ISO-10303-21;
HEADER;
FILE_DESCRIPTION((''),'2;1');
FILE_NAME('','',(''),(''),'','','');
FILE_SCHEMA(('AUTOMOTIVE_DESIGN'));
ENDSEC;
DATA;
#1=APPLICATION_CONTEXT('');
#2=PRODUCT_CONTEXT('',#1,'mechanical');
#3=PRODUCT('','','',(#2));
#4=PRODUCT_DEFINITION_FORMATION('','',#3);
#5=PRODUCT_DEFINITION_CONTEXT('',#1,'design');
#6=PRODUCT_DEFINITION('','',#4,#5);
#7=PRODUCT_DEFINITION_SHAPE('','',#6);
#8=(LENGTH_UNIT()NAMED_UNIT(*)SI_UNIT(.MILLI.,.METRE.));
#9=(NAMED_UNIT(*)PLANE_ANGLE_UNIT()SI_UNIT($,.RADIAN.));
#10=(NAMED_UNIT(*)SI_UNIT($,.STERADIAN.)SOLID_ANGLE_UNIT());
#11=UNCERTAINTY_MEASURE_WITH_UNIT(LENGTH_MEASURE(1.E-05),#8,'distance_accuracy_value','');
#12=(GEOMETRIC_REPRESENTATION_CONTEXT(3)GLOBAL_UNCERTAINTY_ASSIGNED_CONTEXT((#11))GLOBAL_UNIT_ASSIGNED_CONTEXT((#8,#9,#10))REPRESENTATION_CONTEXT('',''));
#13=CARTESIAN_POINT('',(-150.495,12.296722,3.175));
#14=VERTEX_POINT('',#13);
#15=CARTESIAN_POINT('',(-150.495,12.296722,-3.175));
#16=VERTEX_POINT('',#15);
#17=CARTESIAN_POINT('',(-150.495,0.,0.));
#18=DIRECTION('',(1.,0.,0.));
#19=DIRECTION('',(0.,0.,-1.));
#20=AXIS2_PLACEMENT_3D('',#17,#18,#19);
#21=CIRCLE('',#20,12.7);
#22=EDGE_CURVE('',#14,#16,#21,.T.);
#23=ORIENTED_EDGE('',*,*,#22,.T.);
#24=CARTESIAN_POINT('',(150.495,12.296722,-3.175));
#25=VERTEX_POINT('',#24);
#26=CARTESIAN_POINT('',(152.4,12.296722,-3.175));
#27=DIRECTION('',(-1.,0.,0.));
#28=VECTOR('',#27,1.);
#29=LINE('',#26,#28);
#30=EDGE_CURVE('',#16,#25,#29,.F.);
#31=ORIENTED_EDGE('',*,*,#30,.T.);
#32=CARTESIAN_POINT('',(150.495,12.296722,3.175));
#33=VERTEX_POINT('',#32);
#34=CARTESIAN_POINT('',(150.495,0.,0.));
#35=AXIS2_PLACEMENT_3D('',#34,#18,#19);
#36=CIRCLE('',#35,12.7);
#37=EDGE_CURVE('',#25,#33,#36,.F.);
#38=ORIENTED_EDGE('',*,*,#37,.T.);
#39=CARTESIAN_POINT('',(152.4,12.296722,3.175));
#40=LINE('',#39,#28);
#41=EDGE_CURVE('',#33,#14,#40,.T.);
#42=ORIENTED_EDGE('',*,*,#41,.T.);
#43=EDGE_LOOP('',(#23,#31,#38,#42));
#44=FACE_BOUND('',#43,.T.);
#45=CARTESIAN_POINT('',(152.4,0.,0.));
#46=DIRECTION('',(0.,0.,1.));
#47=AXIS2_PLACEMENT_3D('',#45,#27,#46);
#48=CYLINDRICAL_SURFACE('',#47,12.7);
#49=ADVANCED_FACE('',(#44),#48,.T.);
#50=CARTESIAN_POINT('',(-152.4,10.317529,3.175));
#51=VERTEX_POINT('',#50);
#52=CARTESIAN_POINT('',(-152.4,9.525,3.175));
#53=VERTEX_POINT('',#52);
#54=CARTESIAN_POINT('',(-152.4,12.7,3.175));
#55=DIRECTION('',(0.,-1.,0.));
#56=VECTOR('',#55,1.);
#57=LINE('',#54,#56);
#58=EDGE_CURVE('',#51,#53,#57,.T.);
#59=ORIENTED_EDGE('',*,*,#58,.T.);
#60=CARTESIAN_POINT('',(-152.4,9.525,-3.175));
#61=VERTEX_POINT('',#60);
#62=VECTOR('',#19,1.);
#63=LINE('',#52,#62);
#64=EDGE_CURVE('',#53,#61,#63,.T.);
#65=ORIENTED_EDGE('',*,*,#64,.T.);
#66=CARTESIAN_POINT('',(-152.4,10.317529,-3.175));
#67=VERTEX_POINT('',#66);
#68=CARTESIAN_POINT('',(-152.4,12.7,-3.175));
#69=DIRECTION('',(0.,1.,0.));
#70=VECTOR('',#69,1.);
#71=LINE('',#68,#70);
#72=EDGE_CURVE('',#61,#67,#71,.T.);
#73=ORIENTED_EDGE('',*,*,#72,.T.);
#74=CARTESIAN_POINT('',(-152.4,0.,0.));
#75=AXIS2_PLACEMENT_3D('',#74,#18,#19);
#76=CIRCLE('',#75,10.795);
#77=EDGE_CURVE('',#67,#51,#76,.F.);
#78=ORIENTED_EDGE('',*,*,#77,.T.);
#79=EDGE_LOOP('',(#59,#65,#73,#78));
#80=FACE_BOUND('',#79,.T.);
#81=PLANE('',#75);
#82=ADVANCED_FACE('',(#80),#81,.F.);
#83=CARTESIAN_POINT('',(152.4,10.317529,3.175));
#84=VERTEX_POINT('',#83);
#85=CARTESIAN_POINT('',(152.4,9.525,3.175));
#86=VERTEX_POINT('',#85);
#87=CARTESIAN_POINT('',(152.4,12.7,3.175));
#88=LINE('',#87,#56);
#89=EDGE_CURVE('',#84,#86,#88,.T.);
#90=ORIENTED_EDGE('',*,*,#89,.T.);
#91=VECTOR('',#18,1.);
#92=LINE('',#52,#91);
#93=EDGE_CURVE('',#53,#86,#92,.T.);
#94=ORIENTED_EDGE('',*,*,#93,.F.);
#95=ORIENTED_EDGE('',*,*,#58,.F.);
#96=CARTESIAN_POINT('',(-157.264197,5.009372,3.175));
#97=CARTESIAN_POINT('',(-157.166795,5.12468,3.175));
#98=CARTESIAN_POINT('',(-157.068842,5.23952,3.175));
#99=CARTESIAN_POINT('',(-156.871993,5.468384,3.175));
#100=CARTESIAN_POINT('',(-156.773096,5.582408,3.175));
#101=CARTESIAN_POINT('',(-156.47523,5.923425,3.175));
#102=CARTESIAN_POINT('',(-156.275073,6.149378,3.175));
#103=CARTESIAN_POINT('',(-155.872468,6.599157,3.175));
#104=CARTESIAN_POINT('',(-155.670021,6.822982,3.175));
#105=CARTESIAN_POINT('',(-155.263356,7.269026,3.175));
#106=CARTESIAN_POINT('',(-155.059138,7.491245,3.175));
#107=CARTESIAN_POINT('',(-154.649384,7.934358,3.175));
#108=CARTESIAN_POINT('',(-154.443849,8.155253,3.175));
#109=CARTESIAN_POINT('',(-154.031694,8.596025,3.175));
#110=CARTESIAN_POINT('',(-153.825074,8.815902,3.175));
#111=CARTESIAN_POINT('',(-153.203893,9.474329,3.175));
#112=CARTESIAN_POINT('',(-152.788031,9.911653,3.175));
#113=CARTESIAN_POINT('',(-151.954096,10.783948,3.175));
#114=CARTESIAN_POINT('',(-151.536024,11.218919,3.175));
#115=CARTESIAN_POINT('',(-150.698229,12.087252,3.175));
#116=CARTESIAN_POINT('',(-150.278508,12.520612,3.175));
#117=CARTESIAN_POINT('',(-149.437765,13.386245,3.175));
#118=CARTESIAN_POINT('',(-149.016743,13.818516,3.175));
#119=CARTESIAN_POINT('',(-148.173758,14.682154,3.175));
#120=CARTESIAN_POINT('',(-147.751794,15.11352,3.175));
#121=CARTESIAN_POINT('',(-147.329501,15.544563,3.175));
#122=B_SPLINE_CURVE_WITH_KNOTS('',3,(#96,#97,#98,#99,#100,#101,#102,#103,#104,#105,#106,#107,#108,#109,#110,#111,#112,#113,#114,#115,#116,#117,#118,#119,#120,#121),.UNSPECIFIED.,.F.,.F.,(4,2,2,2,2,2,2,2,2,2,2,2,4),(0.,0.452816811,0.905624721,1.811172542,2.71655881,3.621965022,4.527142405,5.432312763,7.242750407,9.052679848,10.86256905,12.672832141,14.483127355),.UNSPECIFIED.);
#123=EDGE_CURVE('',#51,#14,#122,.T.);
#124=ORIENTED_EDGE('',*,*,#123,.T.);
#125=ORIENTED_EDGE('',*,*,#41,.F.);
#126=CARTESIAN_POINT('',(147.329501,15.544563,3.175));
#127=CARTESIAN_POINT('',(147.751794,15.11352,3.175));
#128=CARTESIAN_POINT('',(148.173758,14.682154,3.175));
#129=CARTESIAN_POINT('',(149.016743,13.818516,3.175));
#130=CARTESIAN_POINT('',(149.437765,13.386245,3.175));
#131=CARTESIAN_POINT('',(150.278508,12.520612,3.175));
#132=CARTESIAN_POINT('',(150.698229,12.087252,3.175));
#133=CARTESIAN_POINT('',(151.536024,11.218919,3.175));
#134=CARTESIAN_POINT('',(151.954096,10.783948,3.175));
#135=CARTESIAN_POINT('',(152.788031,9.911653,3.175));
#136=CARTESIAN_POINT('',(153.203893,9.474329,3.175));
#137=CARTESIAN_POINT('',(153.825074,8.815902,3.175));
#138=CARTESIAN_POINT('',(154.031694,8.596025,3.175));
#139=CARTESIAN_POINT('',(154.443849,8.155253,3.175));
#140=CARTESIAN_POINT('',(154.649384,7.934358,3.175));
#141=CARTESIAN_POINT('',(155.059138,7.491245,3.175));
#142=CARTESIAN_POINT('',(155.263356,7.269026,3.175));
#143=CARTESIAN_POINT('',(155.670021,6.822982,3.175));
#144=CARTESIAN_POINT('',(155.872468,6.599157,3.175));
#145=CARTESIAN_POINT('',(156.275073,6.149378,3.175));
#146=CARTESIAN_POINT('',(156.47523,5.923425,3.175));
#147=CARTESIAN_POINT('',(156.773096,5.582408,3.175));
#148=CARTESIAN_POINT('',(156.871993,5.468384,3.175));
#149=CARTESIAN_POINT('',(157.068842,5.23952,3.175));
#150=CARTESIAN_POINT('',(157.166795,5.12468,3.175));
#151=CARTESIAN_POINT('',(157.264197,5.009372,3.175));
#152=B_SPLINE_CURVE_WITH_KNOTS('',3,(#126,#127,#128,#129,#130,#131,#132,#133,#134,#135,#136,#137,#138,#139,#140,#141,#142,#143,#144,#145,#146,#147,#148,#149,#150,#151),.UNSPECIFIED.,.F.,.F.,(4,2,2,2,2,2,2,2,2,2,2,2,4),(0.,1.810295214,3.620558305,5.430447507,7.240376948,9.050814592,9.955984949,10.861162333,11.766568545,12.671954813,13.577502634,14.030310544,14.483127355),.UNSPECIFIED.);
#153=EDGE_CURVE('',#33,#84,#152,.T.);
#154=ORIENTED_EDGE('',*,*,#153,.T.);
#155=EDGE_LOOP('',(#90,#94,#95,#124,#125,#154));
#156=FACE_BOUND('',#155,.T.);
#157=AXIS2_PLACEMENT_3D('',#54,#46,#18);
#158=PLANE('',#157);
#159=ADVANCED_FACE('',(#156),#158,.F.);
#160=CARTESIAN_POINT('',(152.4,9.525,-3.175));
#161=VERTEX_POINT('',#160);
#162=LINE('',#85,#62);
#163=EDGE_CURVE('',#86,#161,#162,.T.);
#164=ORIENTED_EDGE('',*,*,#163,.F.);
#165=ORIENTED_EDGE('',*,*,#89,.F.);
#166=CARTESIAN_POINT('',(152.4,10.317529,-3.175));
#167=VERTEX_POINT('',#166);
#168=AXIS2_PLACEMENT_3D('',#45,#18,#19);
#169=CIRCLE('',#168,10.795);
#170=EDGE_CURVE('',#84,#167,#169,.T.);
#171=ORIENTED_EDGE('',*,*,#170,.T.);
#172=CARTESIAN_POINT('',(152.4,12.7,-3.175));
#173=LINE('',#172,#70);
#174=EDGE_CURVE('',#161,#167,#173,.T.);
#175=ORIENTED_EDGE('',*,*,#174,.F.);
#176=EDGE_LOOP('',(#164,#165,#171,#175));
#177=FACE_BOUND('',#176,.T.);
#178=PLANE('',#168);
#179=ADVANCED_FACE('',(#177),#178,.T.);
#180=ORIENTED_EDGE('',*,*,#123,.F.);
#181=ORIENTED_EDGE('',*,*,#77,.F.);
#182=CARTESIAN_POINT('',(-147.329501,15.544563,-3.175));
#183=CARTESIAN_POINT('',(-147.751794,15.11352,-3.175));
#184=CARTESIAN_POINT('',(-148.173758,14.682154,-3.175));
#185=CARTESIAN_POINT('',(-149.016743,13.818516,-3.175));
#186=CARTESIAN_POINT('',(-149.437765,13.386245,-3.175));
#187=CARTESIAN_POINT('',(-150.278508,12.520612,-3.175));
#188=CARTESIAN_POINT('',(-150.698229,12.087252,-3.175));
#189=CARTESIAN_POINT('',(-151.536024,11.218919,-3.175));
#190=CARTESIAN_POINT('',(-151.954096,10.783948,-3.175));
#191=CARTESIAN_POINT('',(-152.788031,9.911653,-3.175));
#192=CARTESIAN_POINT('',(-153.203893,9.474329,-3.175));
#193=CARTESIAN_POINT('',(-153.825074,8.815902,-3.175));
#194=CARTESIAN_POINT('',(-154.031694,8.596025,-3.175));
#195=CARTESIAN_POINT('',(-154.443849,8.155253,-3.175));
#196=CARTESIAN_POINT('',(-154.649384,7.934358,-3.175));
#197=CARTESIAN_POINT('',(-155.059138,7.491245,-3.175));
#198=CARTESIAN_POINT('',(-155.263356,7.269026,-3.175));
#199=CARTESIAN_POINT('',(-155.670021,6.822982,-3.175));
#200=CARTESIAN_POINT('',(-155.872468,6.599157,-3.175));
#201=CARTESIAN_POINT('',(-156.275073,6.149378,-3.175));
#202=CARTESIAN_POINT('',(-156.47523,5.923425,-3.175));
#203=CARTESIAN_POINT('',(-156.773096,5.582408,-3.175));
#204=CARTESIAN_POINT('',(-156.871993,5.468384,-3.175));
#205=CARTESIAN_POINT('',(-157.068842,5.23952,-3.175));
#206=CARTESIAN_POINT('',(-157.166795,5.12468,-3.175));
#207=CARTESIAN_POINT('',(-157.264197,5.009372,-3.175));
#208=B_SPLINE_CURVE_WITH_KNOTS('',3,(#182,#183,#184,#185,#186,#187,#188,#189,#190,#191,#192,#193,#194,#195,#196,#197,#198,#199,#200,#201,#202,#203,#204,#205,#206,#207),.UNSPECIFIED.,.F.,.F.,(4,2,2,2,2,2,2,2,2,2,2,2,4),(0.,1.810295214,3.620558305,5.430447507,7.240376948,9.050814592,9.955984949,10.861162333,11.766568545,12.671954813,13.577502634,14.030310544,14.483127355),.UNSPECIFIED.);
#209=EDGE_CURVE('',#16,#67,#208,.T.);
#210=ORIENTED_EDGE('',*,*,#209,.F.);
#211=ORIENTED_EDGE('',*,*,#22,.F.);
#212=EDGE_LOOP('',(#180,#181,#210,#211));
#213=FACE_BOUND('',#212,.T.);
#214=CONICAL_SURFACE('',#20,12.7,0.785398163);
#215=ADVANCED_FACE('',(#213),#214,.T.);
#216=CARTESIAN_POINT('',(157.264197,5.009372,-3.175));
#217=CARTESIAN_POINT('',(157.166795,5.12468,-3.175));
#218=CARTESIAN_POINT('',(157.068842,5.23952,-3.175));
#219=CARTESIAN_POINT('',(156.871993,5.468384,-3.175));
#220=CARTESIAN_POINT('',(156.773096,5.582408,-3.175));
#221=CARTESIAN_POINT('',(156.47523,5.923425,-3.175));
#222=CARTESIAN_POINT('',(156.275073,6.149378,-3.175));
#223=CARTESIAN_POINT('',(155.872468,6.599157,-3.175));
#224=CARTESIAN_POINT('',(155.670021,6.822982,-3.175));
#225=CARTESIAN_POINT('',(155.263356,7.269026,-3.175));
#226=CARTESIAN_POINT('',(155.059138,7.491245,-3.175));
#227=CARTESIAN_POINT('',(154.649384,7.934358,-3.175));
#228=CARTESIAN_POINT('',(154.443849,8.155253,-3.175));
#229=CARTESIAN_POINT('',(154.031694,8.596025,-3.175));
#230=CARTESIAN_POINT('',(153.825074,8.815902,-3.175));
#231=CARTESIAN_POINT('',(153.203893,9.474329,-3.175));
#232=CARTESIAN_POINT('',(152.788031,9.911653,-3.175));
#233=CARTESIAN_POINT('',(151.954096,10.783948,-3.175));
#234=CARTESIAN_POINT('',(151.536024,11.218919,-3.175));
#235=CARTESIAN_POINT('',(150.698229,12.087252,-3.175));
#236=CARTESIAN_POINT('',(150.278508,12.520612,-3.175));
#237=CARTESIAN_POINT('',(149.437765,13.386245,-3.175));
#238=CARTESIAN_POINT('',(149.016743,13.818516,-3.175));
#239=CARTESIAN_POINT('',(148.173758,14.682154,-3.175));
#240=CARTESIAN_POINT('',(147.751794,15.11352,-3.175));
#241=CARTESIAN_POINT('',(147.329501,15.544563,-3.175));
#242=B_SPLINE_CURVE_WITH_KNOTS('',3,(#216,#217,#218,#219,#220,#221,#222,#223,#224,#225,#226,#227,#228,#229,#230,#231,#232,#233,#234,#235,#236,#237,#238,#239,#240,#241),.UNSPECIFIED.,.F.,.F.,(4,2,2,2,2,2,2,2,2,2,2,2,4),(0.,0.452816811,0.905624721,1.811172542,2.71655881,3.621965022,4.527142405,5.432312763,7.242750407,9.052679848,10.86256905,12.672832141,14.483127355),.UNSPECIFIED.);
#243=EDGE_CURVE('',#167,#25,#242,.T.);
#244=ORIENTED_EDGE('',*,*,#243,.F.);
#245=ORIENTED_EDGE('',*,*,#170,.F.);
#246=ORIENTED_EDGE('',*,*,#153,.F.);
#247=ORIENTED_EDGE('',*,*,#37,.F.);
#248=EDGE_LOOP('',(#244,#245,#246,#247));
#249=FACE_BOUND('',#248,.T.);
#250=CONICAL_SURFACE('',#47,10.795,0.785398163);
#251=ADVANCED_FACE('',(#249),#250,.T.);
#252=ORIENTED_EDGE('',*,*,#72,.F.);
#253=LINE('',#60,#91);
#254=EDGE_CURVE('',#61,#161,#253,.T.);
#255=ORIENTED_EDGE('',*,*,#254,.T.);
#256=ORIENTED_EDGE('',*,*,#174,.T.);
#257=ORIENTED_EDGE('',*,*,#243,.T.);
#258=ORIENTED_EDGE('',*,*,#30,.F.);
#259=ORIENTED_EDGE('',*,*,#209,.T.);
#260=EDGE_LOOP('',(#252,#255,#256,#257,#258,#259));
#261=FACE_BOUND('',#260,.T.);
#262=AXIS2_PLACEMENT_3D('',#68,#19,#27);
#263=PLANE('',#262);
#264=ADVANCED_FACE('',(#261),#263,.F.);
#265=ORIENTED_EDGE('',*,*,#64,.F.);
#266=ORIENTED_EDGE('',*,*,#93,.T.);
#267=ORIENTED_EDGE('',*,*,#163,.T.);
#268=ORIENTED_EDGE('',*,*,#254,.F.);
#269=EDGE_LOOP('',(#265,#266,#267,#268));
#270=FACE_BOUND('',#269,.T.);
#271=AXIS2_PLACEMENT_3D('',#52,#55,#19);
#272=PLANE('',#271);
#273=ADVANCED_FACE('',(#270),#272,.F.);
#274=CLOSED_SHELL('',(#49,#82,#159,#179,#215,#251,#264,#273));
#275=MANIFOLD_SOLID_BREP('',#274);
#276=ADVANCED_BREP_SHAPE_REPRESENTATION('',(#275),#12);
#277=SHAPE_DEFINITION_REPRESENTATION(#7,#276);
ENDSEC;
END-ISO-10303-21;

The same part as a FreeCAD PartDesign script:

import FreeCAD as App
import Part
import Sketcher
Q = App.Units.Quantity


def edges_at(feature, points):
    """Names of the edges that pass closest to the given points."""
    edges = feature.Shape.Edges
    near = lambda p: min(range(len(edges)), key=lambda i: edges[i].distToShape(Part.Vertex(*p))[0])
    return sorted({f"Edge{near(p) + 1}" for p in points})

doc = App.newDocument("Part")
body = doc.addObject("PartDesign::Body", "Body")

# Sketch on YZ plane
sketch1 = doc.addObject("Sketcher::SketchObject", "Sketch")
body.addObject(sketch1)
sketch1.AttachmentSupport = (doc.YZ_Plane, [""])
sketch1.MapMode = "FlatFace"
sketch1.addGeometry(Part.Circle(App.Vector(0, 0, 0), App.Vector(0, 0, 1), 13), False)
sketch1.addConstraint([
    Sketcher.Constraint("Coincident", 0, 3, -1, 1),
    Sketcher.Constraint("Diameter", 0, Q("1 in")),
])
pad1 = doc.addObject("PartDesign::Pad", "Pad")
body.addObject(pad1)
pad1.Profile = sketch1
pad1.Length = Q("12 in")
pad1.Midplane = True
doc.recompute()

chamfer = doc.addObject("PartDesign::Chamfer", "Chamfer")
body.addObject(chamfer)
chamfer.Base = (pad1, edges_at(pad1, [(-152.4, 0, 12.7), (152.4, 0, 12.7)]))
chamfer.Size = Q("0.075 in")

# Sketch on YZ plane
sketch2 = doc.addObject("Sketcher::SketchObject", "Sketch001")
body.addObject(sketch2)
sketch2.AttachmentSupport = (doc.YZ_Plane, [""])
sketch2.MapMode = "FlatFace"
sketch2.addGeometry([
    Part.LineSegment(App.Vector(12.7, 3.2, 0), App.Vector(9.5, 3.2, 0)),
    Part.LineSegment(App.Vector(9.5, 3.2, 0), App.Vector(9.5, -3.2, 0)),
    Part.LineSegment(App.Vector(9.5, -3.2, 0), App.Vector(12.7, -3.2, 0)),
    Part.LineSegment(App.Vector(12.7, -3.2, 0), App.Vector(12.7, 3.2, 0)),
], False)
sketch2.addConstraint([
    Sketcher.Constraint("Coincident", 0, 2, 1, 1),
    Sketcher.Constraint("Coincident", 1, 2, 2, 1),
    Sketcher.Constraint("Coincident", 2, 2, 3, 1),
    Sketcher.Constraint("Coincident", 3, 2, 0, 1),
    Sketcher.Constraint("Horizontal", 0),
    Sketcher.Constraint("Vertical", 1),
    Sketcher.Constraint("Horizontal", 2),
    Sketcher.Constraint("Vertical", 3),
    Sketcher.Constraint("DistanceY", 1, 2, 1, 1, Q("0.25 in")),
    Sketcher.Constraint("DistanceX", -1, 1, 2, 2, Q("0.5 in")),
    Sketcher.Constraint("DistanceX", 0, 2, 0, 1, Q("0.125 in")),
    Sketcher.Constraint("DistanceY", -1, 1, 0, 2, Q("0.125 in")),
])
pocket1 = doc.addObject("PartDesign::Pocket", "Pocket")
body.addObject(pocket1)
pocket1.Profile = sketch2
pocket1.Type = "ThroughAll"
pocket1.Midplane = True

doc.recompute()
